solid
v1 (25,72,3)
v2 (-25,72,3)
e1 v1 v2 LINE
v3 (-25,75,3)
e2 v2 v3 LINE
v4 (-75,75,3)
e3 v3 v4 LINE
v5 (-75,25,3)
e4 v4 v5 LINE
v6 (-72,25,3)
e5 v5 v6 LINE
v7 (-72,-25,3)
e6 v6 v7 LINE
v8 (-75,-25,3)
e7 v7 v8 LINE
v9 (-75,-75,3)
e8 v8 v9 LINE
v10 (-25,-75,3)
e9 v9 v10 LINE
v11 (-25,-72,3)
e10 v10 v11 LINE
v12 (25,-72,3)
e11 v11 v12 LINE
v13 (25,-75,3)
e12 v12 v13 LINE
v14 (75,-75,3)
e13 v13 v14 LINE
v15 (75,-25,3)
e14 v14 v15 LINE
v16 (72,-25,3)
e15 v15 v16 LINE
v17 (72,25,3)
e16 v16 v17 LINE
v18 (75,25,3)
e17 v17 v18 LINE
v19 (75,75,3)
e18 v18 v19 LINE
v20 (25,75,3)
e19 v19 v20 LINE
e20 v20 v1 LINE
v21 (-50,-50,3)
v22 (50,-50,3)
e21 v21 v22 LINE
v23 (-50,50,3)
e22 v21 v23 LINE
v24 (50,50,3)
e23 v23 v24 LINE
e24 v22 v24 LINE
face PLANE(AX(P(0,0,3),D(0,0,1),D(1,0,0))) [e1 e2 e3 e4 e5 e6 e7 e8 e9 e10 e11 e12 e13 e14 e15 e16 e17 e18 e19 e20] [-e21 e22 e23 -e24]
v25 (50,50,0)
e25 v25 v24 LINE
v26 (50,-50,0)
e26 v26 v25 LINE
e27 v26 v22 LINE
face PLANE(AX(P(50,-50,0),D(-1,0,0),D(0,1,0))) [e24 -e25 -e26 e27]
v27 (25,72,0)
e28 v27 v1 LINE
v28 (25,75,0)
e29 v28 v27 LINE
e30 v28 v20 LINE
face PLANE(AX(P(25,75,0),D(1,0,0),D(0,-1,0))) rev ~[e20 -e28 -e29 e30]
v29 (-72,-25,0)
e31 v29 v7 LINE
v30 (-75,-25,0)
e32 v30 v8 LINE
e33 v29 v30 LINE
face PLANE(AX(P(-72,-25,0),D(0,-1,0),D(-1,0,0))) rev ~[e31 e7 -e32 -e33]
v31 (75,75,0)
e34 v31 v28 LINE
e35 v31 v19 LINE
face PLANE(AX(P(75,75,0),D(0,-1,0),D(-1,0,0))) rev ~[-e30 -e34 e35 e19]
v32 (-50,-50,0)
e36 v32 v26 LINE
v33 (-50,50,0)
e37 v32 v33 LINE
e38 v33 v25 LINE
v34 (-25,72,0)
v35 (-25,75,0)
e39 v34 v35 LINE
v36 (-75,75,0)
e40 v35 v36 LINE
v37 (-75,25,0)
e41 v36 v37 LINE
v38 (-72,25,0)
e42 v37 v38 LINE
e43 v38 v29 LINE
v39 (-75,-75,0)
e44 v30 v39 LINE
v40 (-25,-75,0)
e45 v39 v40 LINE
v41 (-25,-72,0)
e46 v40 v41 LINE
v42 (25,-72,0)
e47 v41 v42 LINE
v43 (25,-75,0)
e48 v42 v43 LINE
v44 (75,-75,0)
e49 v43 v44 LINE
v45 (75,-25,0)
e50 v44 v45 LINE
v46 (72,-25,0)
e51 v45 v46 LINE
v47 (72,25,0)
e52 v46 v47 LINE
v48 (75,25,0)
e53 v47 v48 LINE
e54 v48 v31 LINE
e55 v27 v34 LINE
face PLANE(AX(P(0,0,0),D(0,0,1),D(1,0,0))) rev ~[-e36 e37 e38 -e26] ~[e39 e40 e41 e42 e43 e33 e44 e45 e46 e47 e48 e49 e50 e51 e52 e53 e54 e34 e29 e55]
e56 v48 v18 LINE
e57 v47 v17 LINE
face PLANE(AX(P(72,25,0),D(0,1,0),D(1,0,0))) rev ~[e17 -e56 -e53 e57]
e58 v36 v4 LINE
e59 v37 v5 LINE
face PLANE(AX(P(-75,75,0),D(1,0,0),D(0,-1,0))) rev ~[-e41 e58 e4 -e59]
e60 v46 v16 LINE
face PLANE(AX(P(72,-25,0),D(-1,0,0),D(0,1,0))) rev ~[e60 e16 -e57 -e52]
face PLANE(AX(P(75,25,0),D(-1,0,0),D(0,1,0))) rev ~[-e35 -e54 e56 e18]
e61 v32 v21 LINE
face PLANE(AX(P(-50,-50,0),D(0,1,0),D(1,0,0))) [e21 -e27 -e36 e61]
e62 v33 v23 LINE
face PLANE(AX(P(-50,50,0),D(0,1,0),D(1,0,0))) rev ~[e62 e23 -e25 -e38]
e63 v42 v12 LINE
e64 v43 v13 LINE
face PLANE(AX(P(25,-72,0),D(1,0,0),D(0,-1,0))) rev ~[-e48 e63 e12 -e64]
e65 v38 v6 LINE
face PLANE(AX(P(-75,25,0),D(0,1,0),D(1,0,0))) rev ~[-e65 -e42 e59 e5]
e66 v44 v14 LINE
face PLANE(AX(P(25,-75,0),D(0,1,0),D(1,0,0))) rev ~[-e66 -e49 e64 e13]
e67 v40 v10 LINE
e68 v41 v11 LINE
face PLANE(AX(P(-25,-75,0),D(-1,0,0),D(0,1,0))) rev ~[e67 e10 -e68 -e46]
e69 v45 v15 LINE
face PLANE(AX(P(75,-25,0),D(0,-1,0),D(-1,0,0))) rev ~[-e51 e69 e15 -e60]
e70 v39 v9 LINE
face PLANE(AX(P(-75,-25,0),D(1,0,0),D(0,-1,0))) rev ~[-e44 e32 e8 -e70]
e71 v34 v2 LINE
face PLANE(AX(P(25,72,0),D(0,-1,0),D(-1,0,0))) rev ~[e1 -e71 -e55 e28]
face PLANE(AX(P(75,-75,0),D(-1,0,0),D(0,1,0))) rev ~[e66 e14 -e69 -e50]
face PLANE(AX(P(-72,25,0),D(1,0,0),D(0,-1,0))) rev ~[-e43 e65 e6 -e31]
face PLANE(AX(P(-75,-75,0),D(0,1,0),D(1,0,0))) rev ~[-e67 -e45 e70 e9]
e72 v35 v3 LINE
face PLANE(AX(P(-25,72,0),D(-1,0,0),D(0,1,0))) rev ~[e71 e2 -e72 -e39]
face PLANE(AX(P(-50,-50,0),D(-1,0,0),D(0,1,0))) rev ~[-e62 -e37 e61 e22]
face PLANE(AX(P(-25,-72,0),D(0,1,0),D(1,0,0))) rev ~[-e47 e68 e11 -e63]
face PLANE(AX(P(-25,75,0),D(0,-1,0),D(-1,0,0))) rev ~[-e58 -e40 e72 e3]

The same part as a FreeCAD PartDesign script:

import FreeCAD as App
import Part
import Sketcher
Q = App.Units.Quantity


def add_polygon(sketch, points):
    """Adds a closed chain of lines whose ends are joined by coincident constraints."""
    first, n = sketch.GeometryCount, len(points)
    for a, b in zip(points, points[1:] + points[:1]):
        sketch.addGeometry(Part.LineSegment(App.Vector(*a, 0), App.Vector(*b, 0)), False)
    for i in range(n):
        sketch.addConstraint(Sketcher.Constraint("Coincident", first + i, 2, first + (i + 1) % n, 1))

doc = App.newDocument("Part")
body = doc.addObject("PartDesign::Body", "Body")

sketch1 = body.newObject("Sketcher::SketchObject", "Sketch")
sketch1.AttachmentSupport = (doc.getObject("XY_Plane"), [""])
sketch1.MapMode = "FlatFace"
add_polygon(sketch1, [(75, 25), (75, 75), (25, 75), (25, 72), (-25, 72), (-25, 75), (-75, 75), (-75, 25), (-72, 25), (-72, -25), (-75, -25), (-75, -75), (-25, -75), (-25, -72), (25, -72), (25, -75), (75, -75), (75, -25), (72, -25), (72, 25)])
add_polygon(sketch1, [(50, -50), (-50, -50), (-50, 50), (50, 50)])
sketch1.addConstraint(Sketcher.Constraint("Vertical", 0))
sketch1.addConstraint(Sketcher.Constraint("Horizontal", 1))
sketch1.addConstraint(Sketcher.Constraint("Vertical", 2))
sketch1.addConstraint(Sketcher.Constraint("Horizontal", 3))
sketch1.addConstraint(Sketcher.Constraint("Vertical", 4))
sketch1.addConstraint(Sketcher.Constraint("Horizontal", 5))
sketch1.addConstraint(Sketcher.Constraint("Vertical", 6))
sketch1.addConstraint(Sketcher.Constraint("Horizontal", 7))
sketch1.addConstraint(Sketcher.Constraint("Vertical", 8))
sketch1.addConstraint(Sketcher.Constraint("Horizontal", 9))
sketch1.addConstraint(Sketcher.Constraint("Vertical", 10))
sketch1.addConstraint(Sketcher.Constraint("Horizontal", 11))
sketch1.addConstraint(Sketcher.Constraint("Vertical", 12))
sketch1.addConstraint(Sketcher.Constraint("Horizontal", 13))
sketch1.addConstraint(Sketcher.Constraint("Vertical", 14))
sketch1.addConstraint(Sketcher.Constraint("Horizontal", 15))
sketch1.addConstraint(Sketcher.Constraint("Vertical", 16))
sketch1.addConstraint(Sketcher.Constraint("Horizontal", 17))
sketch1.addConstraint(Sketcher.Constraint("Vertical", 18))
sketch1.addConstraint(Sketcher.Constraint("Horizontal", 19))
sketch1.addConstraint(Sketcher.Constraint("Horizontal", 20))
sketch1.addConstraint(Sketcher.Constraint("Vertical", 21))
sketch1.addConstraint(Sketcher.Constraint("Horizontal", 22))
sketch1.addConstraint(Sketcher.Constraint("Vertical", 23))
sketch1.addConstraint(Sketcher.Constraint("Symmetric", 0, 2, 10, 2, -1, 1))
sketch1.addConstraint(Sketcher.Constraint("Symmetric", 2, 2, 12, 2, -1, 1))
sketch1.addConstraint(Sketcher.Constraint("Symmetric", 4, 2, 14, 2, -1, 1))
sketch1.addConstraint(Sketcher.Constraint("Symmetric", 6, 2, 16, 2, -1, 1))
sketch1.addConstraint(Sketcher.Constraint("Symmetric", 8, 2, 18, 2, -1, 1))
sketch1.addConstraint(Sketcher.Constraint("Symmetric", 20, 2, 22, 2, -1, 1))
sketch1.addConstraint(Sketcher.Constraint("Symmetric", 1, 2, 4, 2, -2))
sketch1.addConstraint(Sketcher.Constraint("Symmetric", 9, 2, 16, 2, -2))
sketch1.addConstraint(Sketcher.Constraint("Equal", 1, 3))
sketch1.addConstraint(Sketcher.Constraint("Equal", 15, 0))
sketch1.addConstraint(Sketcher.Constraint("Equal", 19, 2))
sketch1.addConstraint(Sketcher.Constraint("Equal", 6, 8))
sketch1.addConstraint(Sketcher.Constraint("Equal", 22, 21))
sketch1.addConstraint(Sketcher.Constraint("DistanceX", 1, 2, 1, 1, Q("50 mm")))
sketch1.addConstraint(Sketcher.Constraint("DistanceX", 7, 1, 7, 2, Q("3 mm")))
sketch1.addConstraint(Sketcher.Constraint("DistanceX", 20, 2, 20, 1, Q("100 mm")))
pad1 = body.newObject("PartDesign::Pad", "Pad")
pad1.Profile = sketch1
pad1.Length = 3

doc.recompute()
